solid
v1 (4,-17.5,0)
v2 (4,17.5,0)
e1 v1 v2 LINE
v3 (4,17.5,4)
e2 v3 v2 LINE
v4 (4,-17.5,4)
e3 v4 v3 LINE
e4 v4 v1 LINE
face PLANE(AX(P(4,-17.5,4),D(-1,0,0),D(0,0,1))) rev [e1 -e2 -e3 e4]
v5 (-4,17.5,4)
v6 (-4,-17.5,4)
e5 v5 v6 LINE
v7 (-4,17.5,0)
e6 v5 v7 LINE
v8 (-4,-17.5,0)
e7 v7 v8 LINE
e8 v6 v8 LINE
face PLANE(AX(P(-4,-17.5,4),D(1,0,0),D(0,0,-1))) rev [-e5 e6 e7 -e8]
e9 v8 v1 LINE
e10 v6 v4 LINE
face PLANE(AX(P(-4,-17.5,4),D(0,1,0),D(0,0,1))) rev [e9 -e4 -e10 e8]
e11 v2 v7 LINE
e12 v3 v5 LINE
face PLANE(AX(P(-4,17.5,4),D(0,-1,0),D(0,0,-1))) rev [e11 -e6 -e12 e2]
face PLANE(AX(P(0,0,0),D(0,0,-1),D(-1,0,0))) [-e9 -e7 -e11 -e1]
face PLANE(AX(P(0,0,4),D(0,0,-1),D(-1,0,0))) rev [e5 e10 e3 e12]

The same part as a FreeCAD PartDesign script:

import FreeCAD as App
import Part
import Sketcher

doc = App.newDocument("Part")
body = doc.addObject("PartDesign::Body", "Body")

sketch1 = body.newObject("Sketcher::SketchObject", "Sketch")
sketch1.AttachmentSupport = (doc.getObject("XY_Plane"), [""])
sketch1.MapMode = "FlatFace"
sketch1.addGeometry(Part.LineSegment(App.Vector(-4, 18, 0), App.Vector(-4, -18, 0)), False)
sketch1.addGeometry(Part.LineSegment(App.Vector(-4, -18, 0), App.Vector(4, -18, 0)), False)
sketch1.addGeometry(Part.LineSegment(App.Vector(4, -18, 0), App.Vector(4, 18, 0)), False)
sketch1.addGeometry(Part.LineSegment(App.Vector(4, 18, 0), App.Vector(-4, 18, 0)), False)
sketch1.addConstraint(Sketcher.Constraint("Coincident", 0, 2, 1, 1))
sketch1.addConstraint(Sketcher.Constraint("Coincident", 1, 2, 2, 1))
sketch1.addConstraint(Sketcher.Constraint("Coincident", 2, 2, 3, 1))
sketch1.addConstraint(Sketcher.Constraint("Coincident", 3, 2, 0, 1))
sketch1.addConstraint(Sketcher.Constraint("Vertical", 0))
sketch1.addConstraint(Sketcher.Constraint("Horizontal", 1))
sketch1.addConstraint(Sketcher.Constraint("Vertical", 2))
sketch1.addConstraint(Sketcher.Constraint("Horizontal", 3))
sketch1.addConstraint(Sketcher.Constraint("Symmetric", 0, 2, 2, 2, -1, 1))
sketch1.addConstraint(Sketcher.Constraint("DistanceX", 1, 1, 1, 2, 8.0))
sketch1.addConstraint(Sketcher.Constraint("DistanceY", 0, 2, 0, 1, 35.0))
pad1 = body.newObject("PartDesign::Pad", "Pad")
pad1.Profile = sketch1
pad1.Length = 4

doc.recompute()
